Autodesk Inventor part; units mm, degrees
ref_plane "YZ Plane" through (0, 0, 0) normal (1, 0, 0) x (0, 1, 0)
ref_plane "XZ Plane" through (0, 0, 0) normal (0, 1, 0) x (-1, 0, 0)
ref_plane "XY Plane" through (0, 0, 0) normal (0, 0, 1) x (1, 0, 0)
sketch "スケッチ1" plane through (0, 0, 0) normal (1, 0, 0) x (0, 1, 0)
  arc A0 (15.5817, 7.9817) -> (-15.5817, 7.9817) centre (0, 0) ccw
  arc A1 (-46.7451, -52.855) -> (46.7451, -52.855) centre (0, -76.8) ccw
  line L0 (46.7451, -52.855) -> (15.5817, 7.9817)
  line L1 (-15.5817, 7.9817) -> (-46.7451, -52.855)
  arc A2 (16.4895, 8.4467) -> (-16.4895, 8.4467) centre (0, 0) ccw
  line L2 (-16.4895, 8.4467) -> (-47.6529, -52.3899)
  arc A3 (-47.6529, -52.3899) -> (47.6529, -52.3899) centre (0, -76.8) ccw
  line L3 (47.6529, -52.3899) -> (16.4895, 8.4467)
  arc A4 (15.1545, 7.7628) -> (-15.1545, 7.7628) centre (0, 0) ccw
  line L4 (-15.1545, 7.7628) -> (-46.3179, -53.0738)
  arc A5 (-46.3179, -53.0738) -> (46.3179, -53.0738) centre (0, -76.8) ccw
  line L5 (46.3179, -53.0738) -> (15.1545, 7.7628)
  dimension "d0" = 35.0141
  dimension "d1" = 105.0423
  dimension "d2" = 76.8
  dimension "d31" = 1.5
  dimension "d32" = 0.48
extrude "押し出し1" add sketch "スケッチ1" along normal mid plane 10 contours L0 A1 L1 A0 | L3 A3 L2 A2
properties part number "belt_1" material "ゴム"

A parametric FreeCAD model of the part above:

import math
import FreeCAD as App
import Part
import Sketcher
from FreeCAD import Vector
Q = App.Units.Quantity

doc = App.newDocument("Part")
params = doc.addObject("Spreadsheet::Sheet", "Params")
for row, (alias, value) in enumerate([
    ("pad1_length", "10 mm"),
], start=1):
    params.set(f"A{row}", alias)
    params.set(f"B{row}", "=" + value)
    params.setAlias(f"B{row}", alias)

body = doc.addObject("PartDesign::Body", "Body")

# Sketch on YZ plane
sketch1 = body.newObject("Sketcher::SketchObject", "Sketch")
sketch1.AttachmentSupport = (doc.getObject("YZ_Plane"), [""])
sketch1.MapMode = "FlatFace"
sketch1.addGeometry(Part.LineSegment(Vector(48, -52, 0), Vector(16, 8, 0)), False)
sketch1.addGeometry(Part.ArcOfCircle(Part.Circle(Vector(0, 0, 0), Vector(0, 0, 1), 19), math.radians(27), math.radians(153)), False)
sketch1.addGeometry(Part.LineSegment(Vector(-16, 8, 0), Vector(-48, -52, 0)), False)
sketch1.addGeometry(Part.ArcOfCircle(Part.Circle(Vector(0, -77, 0), Vector(0, 0, 1), 54), math.radians(153), math.radians(387)), False)
sketch1.addGeometry(Part.ArcOfCircle(Part.Circle(Vector(0, 0, 0), Vector(0, 0, 1), 17), math.radians(27), math.radians(153)), False)
sketch1.addGeometry(Part.LineSegment(Vector(15, 8, 0), Vector(46, -53, 0)), False)
sketch1.addGeometry(Part.ArcOfCircle(Part.Circle(Vector(0, -77, 0), Vector(0, 0, 1), 52), math.radians(153), math.radians(387)), False)
sketch1.addGeometry(Part.LineSegment(Vector(-46, -53, 0), Vector(-15, 8, 0)), False)
sketch1.addConstraint(Sketcher.Constraint("Tangent", 0, 2, 1, 1))
sketch1.addConstraint(Sketcher.Constraint("Tangent", 1, 2, 2, 1))
sketch1.addConstraint(Sketcher.Constraint("Tangent", 2, 2, 3, 1))
sketch1.addConstraint(Sketcher.Constraint("Tangent", 3, 2, 0, 1))
sketch1.addConstraint(Sketcher.Constraint("Tangent", 4, 1, 5, 1))
sketch1.addConstraint(Sketcher.Constraint("Tangent", 5, 2, 6, 2))
sketch1.addConstraint(Sketcher.Constraint("Tangent", 6, 1, 7, 1))
sketch1.addConstraint(Sketcher.Constraint("Tangent", 7, 2, 4, 2))
sketch1.addConstraint(Sketcher.Constraint("Coincident", 1, 3, -1, 1))
sketch1.addConstraint(Sketcher.Constraint("Coincident", 4, 3, -1, 1))
sketch1.addConstraint(Sketcher.Constraint("Coincident", 6, 3, 3, 3))
sketch1.addConstraint(Sketcher.Constraint("PointOnObject", 3, 3, -2))
sketch1.addConstraint(Sketcher.Constraint("Parallel", 0, 5))
sketch1.addConstraint(Sketcher.Constraint("DistanceY", 3, 3, -1, 1, Q("76.8 mm")))
sketch1.addConstraint(Sketcher.Constraint("Radius", 1, Q("18.527 mm")))
sketch1.addConstraint(Sketcher.Constraint("Radius", 4, Q("17.027 mm")))
sketch1.addConstraint(Sketcher.Constraint("Radius", 3, Q("53.5411 mm")))
pad1 = body.newObject("PartDesign::Pad", "Pad")
pad1.Profile = sketch1
pad1.setExpression("Length", "Params.pad1_length")
pad1.Midplane = True

doc.recompute()
